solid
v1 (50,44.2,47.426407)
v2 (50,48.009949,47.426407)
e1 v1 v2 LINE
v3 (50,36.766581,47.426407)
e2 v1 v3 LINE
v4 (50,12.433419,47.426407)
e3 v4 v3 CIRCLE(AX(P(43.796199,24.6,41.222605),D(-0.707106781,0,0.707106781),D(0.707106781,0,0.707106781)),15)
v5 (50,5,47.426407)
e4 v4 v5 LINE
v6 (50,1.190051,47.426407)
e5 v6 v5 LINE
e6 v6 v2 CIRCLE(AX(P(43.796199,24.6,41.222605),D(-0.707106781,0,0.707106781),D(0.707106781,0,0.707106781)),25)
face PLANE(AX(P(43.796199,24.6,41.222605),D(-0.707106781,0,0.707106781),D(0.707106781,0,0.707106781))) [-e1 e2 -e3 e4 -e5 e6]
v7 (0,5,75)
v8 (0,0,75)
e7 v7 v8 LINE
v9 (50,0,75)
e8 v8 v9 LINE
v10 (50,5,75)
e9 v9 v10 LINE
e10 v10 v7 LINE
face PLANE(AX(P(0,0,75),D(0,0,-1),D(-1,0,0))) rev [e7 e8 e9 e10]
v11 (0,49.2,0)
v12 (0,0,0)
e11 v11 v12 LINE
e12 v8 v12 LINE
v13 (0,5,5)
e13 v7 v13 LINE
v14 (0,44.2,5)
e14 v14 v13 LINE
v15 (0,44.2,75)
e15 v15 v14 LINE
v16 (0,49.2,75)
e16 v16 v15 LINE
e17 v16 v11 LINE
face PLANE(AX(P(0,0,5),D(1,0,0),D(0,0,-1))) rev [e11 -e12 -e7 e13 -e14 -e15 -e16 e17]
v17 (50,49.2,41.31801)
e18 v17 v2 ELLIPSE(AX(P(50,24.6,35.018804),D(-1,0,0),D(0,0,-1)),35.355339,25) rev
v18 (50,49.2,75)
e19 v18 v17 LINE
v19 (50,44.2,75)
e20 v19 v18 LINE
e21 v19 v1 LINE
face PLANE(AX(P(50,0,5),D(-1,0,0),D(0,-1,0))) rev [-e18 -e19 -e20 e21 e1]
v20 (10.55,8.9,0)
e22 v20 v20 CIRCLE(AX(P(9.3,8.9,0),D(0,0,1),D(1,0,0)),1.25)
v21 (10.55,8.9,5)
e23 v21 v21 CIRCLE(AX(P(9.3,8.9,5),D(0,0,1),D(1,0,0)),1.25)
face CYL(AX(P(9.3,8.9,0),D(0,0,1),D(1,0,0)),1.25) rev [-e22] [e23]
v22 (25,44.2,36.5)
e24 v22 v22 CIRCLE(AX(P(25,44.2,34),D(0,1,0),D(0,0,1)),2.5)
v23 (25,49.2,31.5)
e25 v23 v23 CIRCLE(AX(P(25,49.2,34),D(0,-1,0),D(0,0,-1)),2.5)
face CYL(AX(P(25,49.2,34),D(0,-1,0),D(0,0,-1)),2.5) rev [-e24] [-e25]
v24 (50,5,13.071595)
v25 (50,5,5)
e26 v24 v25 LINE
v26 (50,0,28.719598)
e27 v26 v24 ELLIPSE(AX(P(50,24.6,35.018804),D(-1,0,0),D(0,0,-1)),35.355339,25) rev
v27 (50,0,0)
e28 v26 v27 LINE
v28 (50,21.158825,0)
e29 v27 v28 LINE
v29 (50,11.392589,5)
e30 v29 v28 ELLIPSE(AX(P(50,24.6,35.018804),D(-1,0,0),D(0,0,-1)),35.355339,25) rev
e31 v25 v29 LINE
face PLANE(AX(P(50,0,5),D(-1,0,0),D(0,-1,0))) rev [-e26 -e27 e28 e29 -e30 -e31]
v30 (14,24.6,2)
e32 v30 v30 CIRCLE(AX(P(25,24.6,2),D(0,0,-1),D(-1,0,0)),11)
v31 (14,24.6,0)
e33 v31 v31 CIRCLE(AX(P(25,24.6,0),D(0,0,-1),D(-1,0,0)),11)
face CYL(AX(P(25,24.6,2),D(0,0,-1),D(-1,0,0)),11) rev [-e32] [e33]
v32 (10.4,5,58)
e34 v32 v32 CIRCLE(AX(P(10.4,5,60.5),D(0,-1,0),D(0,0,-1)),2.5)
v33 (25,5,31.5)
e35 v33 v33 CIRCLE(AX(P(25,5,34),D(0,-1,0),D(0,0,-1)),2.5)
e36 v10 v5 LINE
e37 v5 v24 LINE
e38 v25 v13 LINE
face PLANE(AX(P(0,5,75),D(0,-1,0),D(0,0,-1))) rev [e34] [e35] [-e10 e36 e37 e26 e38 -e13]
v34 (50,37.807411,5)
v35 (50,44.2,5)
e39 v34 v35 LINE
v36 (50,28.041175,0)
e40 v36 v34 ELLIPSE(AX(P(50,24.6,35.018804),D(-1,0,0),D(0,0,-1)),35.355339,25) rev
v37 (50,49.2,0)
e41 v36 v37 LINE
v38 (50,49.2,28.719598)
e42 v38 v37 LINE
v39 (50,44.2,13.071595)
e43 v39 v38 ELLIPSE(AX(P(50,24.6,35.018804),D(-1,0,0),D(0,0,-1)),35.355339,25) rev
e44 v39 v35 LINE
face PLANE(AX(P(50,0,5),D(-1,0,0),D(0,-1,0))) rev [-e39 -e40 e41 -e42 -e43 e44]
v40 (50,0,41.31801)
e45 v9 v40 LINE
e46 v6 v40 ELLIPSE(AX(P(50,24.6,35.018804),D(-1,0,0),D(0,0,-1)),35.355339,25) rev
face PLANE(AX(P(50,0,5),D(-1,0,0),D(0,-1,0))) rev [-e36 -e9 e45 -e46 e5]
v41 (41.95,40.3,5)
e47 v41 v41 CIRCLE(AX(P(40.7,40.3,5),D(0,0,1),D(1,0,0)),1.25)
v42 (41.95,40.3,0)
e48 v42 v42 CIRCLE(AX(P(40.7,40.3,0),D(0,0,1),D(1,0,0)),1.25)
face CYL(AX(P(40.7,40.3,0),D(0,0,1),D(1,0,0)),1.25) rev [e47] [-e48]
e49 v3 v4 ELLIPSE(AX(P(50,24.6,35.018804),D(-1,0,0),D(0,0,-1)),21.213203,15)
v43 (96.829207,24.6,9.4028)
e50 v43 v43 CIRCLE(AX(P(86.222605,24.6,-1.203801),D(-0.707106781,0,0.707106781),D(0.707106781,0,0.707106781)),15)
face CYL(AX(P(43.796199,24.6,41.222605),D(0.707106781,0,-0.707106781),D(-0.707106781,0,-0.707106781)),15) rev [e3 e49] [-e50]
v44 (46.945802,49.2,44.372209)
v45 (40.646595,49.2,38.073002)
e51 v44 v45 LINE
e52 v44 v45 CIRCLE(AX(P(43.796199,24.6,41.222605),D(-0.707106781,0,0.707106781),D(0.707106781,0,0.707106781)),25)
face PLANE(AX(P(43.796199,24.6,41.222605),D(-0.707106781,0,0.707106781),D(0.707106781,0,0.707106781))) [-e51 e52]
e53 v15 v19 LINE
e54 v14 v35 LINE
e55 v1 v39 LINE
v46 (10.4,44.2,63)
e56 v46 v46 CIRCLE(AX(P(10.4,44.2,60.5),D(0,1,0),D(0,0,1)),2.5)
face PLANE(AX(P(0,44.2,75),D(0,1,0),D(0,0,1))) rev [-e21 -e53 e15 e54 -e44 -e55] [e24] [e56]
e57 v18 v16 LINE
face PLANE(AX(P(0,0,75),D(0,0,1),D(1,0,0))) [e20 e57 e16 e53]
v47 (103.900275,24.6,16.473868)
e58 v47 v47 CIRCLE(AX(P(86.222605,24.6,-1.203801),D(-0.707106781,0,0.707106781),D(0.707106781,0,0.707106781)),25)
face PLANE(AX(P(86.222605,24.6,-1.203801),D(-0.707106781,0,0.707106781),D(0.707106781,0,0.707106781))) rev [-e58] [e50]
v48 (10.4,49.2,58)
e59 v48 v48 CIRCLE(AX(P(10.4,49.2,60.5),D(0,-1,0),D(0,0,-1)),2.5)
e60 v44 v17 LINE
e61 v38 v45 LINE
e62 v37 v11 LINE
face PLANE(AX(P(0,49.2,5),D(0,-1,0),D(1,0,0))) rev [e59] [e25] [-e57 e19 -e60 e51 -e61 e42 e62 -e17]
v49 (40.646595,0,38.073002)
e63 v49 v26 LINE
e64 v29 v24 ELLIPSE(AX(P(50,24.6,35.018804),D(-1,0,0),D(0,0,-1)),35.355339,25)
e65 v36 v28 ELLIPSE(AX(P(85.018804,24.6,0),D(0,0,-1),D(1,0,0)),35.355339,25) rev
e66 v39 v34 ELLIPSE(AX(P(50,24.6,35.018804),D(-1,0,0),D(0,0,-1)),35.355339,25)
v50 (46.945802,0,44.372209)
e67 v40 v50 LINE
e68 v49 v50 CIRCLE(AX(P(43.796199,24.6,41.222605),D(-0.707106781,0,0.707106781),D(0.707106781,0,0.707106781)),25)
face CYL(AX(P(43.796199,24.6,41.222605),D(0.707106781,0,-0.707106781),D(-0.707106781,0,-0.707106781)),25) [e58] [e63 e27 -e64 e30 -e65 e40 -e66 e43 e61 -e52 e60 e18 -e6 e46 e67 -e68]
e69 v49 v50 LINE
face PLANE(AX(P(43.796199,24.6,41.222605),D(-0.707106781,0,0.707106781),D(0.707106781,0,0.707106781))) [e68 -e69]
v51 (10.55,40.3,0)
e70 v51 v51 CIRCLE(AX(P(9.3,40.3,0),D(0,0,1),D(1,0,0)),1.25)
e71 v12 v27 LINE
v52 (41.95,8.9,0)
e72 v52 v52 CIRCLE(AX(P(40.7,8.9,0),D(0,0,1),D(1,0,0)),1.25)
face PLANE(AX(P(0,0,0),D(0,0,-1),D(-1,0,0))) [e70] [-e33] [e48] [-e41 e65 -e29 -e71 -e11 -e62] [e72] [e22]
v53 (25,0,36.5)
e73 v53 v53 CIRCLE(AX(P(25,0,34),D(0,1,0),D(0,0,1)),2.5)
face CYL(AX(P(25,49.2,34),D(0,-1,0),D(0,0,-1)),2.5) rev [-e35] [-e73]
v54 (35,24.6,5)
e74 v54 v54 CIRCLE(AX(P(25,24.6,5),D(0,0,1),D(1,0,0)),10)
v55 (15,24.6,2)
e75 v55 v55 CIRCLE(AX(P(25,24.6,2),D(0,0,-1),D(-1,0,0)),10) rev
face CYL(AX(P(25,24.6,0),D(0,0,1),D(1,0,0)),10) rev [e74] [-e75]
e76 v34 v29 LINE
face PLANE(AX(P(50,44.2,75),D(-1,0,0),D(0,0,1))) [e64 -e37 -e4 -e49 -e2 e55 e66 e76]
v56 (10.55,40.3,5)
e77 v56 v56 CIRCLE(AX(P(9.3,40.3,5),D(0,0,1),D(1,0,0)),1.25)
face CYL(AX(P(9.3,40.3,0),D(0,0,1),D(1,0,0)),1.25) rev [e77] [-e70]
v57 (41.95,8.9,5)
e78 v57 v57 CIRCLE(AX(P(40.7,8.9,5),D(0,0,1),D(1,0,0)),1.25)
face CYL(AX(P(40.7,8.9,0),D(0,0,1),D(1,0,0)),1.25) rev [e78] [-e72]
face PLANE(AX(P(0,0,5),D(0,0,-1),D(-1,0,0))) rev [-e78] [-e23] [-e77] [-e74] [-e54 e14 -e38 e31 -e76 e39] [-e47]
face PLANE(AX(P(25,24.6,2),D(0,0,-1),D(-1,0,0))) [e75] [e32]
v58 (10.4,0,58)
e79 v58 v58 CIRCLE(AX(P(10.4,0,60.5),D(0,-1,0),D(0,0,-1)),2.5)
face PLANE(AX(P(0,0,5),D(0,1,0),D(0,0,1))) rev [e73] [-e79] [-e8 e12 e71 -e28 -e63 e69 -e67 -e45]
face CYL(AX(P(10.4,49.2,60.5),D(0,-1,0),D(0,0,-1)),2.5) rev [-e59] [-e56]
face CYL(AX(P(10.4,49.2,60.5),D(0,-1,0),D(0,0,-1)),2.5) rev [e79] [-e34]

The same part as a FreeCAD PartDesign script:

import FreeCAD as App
import Part
import Sketcher

V = App.Vector


def add_polygon(sketch, points):
    """Adds a closed chain of lines whose ends are joined by coincident constraints."""
    first, n = sketch.GeometryCount, len(points)
    for a, b in zip(points, points[1:] + points[:1]):
        sketch.addGeometry(Part.LineSegment(App.Vector(*a, 0), App.Vector(*b, 0)), False)
    for i in range(n):
        sketch.addConstraint(Sketcher.Constraint("Coincident", first + i, 2, first + (i + 1) % n, 1))

doc = App.newDocument("Part")
body = doc.addObject("PartDesign::Body", "Body")

sketch1 = doc.addObject("Sketcher::SketchObject", "Sketch")
body.addObject(sketch1)
sketch1.AttachmentSupport = (doc.XY_Plane, [""])
sketch1.MapMode = "FlatFace"
add_polygon(sketch1, [(0, 49.2), (0, 0), (50, 0), (50, 49.2)])
sketch1.addConstraint([
    Sketcher.Constraint("Vertical", 0),
    Sketcher.Constraint("Horizontal", 1),
    Sketcher.Constraint("Vertical", 2),
    Sketcher.Constraint("Horizontal", 3),
    Sketcher.Constraint("Coincident", 0, 2, -1, 1),
    Sketcher.Constraint("DistanceX", 1, 1, 1, 2, 50.0),
    Sketcher.Constraint("DistanceY", 0, 2, 0, 1, 49.2),
])
pad1 = doc.addObject("PartDesign::Pad", "Pad")
body.addObject(pad1)
pad1.Profile = sketch1
pad1.Length = 5

sketch2 = doc.addObject("Sketcher::SketchObject", "Sketch001")
body.addObject(sketch2)
sketch2.AttachmentSupport = (doc.XY_Plane, [""])
sketch2.MapMode = "FlatFace"
sketch2.AttachmentOffset = App.Placement(V(0, 0, 5), App.Rotation())
add_polygon(sketch2, [(0, 49.2), (0, 44.2), (50, 44.2), (50, 49.2)])
add_polygon(sketch2, [(0, 5), (0, 0), (50, 0), (50, 5)])
sketch2.addConstraint([
    Sketcher.Constraint("Vertical", 0),
    Sketcher.Constraint("Horizontal", 1),
    Sketcher.Constraint("Vertical", 2),
    Sketcher.Constraint("Horizontal", 3),
    Sketcher.Constraint("Vertical", 4),
    Sketcher.Constraint("Horizontal", 5),
    Sketcher.Constraint("Vertical", 6),
    Sketcher.Constraint("Horizontal", 7),
    Sketcher.Constraint("Coincident", 4, 2, -1, 1),
    Sketcher.Constraint("PointOnObject", 0, 2, -2),
    Sketcher.Constraint("Vertical", 2, 2, 5, 2),
    Sketcher.Constraint("Equal", 2, 4),
    Sketcher.Constraint("DistanceX", 1, 1, 1, 2, 50.0),
    Sketcher.Constraint("DistanceY", 0, 2, 0, 1, 5.0),
    Sketcher.Constraint("DistanceY", -1, 1, 0, 2, 44.2),
])
pad2 = doc.addObject("PartDesign::Pad", "Pad001")
body.addObject(pad2)
pad2.Profile = sketch2
pad2.Length = 70

sketch3 = doc.addObject("Sketcher::SketchObject", "Sketch002")
body.addObject(sketch3)
sketch3.AttachmentSupport = (doc.XY_Plane, [""])
sketch3.MapMode = "FlatFace"
sketch3.AttachmentOffset = App.Placement(V(0, 0, 5), App.Rotation())
sketch3.addGeometry([
    Part.Circle(V(25, 24.6, 0), V(0, 0, 1), 10),
    Part.Circle(V(9.3, 8.9, 0), V(0, 0, 1), 1.25),
    Part.Circle(V(40.7, 40.3, 0), V(0, 0, 1), 1.25),
    Part.Circle(V(40.7, 8.9, 0), V(0, 0, 1), 1.25),
    Part.Circle(V(9.3, 40.3, 0), V(0, 0, 1), 1.25),
], False)
sketch3.addConstraint([
    Sketcher.Constraint("Equal", 1, 2),
    Sketcher.Constraint("Equal", 2, 3),
    Sketcher.Constraint("Equal", 3, 4),
    Sketcher.Constraint("Horizontal", 1, 3, 3, 3),
    Sketcher.Constraint("Horizontal", 2, 3, 4, 3),
    Sketcher.Constraint("Vertical", 2, 3, 3, 3),
    Sketcher.Constraint("Vertical", 1, 3, 4, 3),
    Sketcher.Constraint("Diameter", 0, 20.0),
    Sketcher.Constraint("Diameter", 1, 2.5),
    Sketcher.Constraint("DistanceX", -1, 1, 0, 3, 25.0),
    Sketcher.Constraint("DistanceY", -1, 1, 0, 3, 24.6),
    Sketcher.Constraint("DistanceX", -1, 1, 1, 3, 9.3),
    Sketcher.Constraint("DistanceY", -1, 1, 1, 3, 8.9),
    Sketcher.Constraint("DistanceX", -1, 1, 2, 3, 40.7),
    Sketcher.Constraint("DistanceY", -1, 1, 2, 3, 40.3),
])
pocket1 = doc.addObject("PartDesign::Pocket", "Pocket")
body.addObject(pocket1)
pocket1.Profile = sketch3
pocket1.Type = "ThroughAll"

sketch4 = doc.addObject("Sketcher::SketchObject", "Sketch003")
body.addObject(sketch4)
sketch4.AttachmentSupport = (doc.XY_Plane, [""])
sketch4.MapMode = "FlatFace"
sketch4.addGeometry(Part.Circle(V(25, 24.6, 0), V(0, 0, 1), 11), False)
sketch4.addConstraint([
    Sketcher.Constraint("Diameter", 0, 22.0),
    Sketcher.Constraint("DistanceX", -1, 1, 0, 3, 25.0),
    Sketcher.Constraint("DistanceY", -1, 1, 0, 3, 24.6),
])
pocket2 = doc.addObject("PartDesign::Pocket", "Pocket001")
body.addObject(pocket2)
pocket2.Profile = sketch4
pocket2.Length = 2
pocket2.Reversed = True

sketch5 = doc.addObject("Sketcher::SketchObject", "Sketch004")
body.addObject(sketch5)
sketch5.AttachmentSupport = (doc.XZ_Plane, [""])
sketch5.MapMode = "FlatFace"
sketch5.addGeometry(Part.Circle(V(25, 34, 0), V(0, 0, 1), 2.5), False)
sketch5.addConstraint([
    Sketcher.Constraint("Diameter", 0, 5.0),
    Sketcher.Constraint("DistanceX", -1, 1, 0, 3, 25.0),
    Sketcher.Constraint("DistanceY", -1, 1, 0, 3, 34.0),
])
pocket3 = doc.addObject("PartDesign::Pocket", "Pocket002")
body.addObject(pocket3)
pocket3.Profile = sketch5
pocket3.Type = "ThroughAll"
pocket3.Midplane = True

sketch6 = doc.addObject("Sketcher::SketchObject", "Sketch005")
body.addObject(sketch6)
sketch6.AttachmentSupport = (doc.XZ_Plane, [""])
sketch6.MapMode = "FlatFace"
sketch6.addGeometry(Part.Circle(V(10.4, 60.5, 0), V(0, 0, 1), 2.5), False)
sketch6.addConstraint([
    Sketcher.Constraint("Diameter", 0, 5.0),
    Sketcher.Constraint("DistanceX", -1, 1, 0, 3, 10.4),
    Sketcher.Constraint("DistanceY", -1, 1, 0, 3, 60.5),
])
pocket4 = doc.addObject("PartDesign::Pocket", "Pocket003")
body.addObject(pocket4)
pocket4.Profile = sketch6
pocket4.Type = "ThroughAll"

sketch7 = doc.addObject("Sketcher::SketchObject", "Sketch006")
body.addObject(sketch7)
sketch7.Placement = App.Placement(V(50, 5, 5), App.Rotation(V(0.707106781, 0, 0.707106781), V(0, 0.999999999, 0), V(-0.707106781, 0, 0.707106781), "ZXY"))
sketch7.addGeometry([
    Part.Circle(V(21.2265, 19.6, 0), V(0, 0, 1), 25),
    Part.Circle(V(21.2265, 19.6, 0), V(0, 0, 1), 15),
], False)
sketch7.addConstraint([
    Sketcher.Constraint("Coincident", 1, 3, 0, 3),
    Sketcher.Constraint("Diameter", 0, 50.0),
    Sketcher.Constraint("Diameter", 1, 30.0),
    Sketcher.Constraint("DistanceY", -1, 1, 0, 3, 19.6),
    Sketcher.Constraint("DistanceX", -1, 1, 0, 3, 21.2265),
])
pad3 = doc.addObject("PartDesign::Pad", "Pad002")
body.addObject(pad3)
pad3.Profile = sketch7
pad3.Length = 60
pad3.Midplane = True

sketch8 = doc.addObject("Sketcher::SketchObject", "Sketch007")
body.addObject(sketch8)
sketch8.AttachmentSupport = (doc.XZ_Plane, [""])
sketch8.MapMode = "FlatFace"
sketch8.AttachmentOffset = App.Placement(V(0, 0, -5), App.Rotation())
add_polygon(sketch8, [(0, 5), (0, 75), (50, 75), (50, 5)])
sketch8.addConstraint([
    Sketcher.Constraint("Vertical", 0),
    Sketcher.Constraint("Horizontal", 1),
    Sketcher.Constraint("Vertical", 2),
    Sketcher.Constraint("Horizontal", 3),
    Sketcher.Constraint("PointOnObject", 0, 2, -2),
    Sketcher.Constraint("DistanceX", 1, 1, 1, 2, 50.0),
    Sketcher.Constraint("DistanceY", 0, 1, 0, 2, 70.0),
    Sketcher.Constraint("DistanceY", -1, 1, 0, 2, 75.0),
])
pocket5 = doc.addObject("PartDesign::Pocket", "Pocket004")
body.addObject(pocket5)
pocket5.Profile = sketch8
pocket5.Length = 39.2

doc.recompute()
